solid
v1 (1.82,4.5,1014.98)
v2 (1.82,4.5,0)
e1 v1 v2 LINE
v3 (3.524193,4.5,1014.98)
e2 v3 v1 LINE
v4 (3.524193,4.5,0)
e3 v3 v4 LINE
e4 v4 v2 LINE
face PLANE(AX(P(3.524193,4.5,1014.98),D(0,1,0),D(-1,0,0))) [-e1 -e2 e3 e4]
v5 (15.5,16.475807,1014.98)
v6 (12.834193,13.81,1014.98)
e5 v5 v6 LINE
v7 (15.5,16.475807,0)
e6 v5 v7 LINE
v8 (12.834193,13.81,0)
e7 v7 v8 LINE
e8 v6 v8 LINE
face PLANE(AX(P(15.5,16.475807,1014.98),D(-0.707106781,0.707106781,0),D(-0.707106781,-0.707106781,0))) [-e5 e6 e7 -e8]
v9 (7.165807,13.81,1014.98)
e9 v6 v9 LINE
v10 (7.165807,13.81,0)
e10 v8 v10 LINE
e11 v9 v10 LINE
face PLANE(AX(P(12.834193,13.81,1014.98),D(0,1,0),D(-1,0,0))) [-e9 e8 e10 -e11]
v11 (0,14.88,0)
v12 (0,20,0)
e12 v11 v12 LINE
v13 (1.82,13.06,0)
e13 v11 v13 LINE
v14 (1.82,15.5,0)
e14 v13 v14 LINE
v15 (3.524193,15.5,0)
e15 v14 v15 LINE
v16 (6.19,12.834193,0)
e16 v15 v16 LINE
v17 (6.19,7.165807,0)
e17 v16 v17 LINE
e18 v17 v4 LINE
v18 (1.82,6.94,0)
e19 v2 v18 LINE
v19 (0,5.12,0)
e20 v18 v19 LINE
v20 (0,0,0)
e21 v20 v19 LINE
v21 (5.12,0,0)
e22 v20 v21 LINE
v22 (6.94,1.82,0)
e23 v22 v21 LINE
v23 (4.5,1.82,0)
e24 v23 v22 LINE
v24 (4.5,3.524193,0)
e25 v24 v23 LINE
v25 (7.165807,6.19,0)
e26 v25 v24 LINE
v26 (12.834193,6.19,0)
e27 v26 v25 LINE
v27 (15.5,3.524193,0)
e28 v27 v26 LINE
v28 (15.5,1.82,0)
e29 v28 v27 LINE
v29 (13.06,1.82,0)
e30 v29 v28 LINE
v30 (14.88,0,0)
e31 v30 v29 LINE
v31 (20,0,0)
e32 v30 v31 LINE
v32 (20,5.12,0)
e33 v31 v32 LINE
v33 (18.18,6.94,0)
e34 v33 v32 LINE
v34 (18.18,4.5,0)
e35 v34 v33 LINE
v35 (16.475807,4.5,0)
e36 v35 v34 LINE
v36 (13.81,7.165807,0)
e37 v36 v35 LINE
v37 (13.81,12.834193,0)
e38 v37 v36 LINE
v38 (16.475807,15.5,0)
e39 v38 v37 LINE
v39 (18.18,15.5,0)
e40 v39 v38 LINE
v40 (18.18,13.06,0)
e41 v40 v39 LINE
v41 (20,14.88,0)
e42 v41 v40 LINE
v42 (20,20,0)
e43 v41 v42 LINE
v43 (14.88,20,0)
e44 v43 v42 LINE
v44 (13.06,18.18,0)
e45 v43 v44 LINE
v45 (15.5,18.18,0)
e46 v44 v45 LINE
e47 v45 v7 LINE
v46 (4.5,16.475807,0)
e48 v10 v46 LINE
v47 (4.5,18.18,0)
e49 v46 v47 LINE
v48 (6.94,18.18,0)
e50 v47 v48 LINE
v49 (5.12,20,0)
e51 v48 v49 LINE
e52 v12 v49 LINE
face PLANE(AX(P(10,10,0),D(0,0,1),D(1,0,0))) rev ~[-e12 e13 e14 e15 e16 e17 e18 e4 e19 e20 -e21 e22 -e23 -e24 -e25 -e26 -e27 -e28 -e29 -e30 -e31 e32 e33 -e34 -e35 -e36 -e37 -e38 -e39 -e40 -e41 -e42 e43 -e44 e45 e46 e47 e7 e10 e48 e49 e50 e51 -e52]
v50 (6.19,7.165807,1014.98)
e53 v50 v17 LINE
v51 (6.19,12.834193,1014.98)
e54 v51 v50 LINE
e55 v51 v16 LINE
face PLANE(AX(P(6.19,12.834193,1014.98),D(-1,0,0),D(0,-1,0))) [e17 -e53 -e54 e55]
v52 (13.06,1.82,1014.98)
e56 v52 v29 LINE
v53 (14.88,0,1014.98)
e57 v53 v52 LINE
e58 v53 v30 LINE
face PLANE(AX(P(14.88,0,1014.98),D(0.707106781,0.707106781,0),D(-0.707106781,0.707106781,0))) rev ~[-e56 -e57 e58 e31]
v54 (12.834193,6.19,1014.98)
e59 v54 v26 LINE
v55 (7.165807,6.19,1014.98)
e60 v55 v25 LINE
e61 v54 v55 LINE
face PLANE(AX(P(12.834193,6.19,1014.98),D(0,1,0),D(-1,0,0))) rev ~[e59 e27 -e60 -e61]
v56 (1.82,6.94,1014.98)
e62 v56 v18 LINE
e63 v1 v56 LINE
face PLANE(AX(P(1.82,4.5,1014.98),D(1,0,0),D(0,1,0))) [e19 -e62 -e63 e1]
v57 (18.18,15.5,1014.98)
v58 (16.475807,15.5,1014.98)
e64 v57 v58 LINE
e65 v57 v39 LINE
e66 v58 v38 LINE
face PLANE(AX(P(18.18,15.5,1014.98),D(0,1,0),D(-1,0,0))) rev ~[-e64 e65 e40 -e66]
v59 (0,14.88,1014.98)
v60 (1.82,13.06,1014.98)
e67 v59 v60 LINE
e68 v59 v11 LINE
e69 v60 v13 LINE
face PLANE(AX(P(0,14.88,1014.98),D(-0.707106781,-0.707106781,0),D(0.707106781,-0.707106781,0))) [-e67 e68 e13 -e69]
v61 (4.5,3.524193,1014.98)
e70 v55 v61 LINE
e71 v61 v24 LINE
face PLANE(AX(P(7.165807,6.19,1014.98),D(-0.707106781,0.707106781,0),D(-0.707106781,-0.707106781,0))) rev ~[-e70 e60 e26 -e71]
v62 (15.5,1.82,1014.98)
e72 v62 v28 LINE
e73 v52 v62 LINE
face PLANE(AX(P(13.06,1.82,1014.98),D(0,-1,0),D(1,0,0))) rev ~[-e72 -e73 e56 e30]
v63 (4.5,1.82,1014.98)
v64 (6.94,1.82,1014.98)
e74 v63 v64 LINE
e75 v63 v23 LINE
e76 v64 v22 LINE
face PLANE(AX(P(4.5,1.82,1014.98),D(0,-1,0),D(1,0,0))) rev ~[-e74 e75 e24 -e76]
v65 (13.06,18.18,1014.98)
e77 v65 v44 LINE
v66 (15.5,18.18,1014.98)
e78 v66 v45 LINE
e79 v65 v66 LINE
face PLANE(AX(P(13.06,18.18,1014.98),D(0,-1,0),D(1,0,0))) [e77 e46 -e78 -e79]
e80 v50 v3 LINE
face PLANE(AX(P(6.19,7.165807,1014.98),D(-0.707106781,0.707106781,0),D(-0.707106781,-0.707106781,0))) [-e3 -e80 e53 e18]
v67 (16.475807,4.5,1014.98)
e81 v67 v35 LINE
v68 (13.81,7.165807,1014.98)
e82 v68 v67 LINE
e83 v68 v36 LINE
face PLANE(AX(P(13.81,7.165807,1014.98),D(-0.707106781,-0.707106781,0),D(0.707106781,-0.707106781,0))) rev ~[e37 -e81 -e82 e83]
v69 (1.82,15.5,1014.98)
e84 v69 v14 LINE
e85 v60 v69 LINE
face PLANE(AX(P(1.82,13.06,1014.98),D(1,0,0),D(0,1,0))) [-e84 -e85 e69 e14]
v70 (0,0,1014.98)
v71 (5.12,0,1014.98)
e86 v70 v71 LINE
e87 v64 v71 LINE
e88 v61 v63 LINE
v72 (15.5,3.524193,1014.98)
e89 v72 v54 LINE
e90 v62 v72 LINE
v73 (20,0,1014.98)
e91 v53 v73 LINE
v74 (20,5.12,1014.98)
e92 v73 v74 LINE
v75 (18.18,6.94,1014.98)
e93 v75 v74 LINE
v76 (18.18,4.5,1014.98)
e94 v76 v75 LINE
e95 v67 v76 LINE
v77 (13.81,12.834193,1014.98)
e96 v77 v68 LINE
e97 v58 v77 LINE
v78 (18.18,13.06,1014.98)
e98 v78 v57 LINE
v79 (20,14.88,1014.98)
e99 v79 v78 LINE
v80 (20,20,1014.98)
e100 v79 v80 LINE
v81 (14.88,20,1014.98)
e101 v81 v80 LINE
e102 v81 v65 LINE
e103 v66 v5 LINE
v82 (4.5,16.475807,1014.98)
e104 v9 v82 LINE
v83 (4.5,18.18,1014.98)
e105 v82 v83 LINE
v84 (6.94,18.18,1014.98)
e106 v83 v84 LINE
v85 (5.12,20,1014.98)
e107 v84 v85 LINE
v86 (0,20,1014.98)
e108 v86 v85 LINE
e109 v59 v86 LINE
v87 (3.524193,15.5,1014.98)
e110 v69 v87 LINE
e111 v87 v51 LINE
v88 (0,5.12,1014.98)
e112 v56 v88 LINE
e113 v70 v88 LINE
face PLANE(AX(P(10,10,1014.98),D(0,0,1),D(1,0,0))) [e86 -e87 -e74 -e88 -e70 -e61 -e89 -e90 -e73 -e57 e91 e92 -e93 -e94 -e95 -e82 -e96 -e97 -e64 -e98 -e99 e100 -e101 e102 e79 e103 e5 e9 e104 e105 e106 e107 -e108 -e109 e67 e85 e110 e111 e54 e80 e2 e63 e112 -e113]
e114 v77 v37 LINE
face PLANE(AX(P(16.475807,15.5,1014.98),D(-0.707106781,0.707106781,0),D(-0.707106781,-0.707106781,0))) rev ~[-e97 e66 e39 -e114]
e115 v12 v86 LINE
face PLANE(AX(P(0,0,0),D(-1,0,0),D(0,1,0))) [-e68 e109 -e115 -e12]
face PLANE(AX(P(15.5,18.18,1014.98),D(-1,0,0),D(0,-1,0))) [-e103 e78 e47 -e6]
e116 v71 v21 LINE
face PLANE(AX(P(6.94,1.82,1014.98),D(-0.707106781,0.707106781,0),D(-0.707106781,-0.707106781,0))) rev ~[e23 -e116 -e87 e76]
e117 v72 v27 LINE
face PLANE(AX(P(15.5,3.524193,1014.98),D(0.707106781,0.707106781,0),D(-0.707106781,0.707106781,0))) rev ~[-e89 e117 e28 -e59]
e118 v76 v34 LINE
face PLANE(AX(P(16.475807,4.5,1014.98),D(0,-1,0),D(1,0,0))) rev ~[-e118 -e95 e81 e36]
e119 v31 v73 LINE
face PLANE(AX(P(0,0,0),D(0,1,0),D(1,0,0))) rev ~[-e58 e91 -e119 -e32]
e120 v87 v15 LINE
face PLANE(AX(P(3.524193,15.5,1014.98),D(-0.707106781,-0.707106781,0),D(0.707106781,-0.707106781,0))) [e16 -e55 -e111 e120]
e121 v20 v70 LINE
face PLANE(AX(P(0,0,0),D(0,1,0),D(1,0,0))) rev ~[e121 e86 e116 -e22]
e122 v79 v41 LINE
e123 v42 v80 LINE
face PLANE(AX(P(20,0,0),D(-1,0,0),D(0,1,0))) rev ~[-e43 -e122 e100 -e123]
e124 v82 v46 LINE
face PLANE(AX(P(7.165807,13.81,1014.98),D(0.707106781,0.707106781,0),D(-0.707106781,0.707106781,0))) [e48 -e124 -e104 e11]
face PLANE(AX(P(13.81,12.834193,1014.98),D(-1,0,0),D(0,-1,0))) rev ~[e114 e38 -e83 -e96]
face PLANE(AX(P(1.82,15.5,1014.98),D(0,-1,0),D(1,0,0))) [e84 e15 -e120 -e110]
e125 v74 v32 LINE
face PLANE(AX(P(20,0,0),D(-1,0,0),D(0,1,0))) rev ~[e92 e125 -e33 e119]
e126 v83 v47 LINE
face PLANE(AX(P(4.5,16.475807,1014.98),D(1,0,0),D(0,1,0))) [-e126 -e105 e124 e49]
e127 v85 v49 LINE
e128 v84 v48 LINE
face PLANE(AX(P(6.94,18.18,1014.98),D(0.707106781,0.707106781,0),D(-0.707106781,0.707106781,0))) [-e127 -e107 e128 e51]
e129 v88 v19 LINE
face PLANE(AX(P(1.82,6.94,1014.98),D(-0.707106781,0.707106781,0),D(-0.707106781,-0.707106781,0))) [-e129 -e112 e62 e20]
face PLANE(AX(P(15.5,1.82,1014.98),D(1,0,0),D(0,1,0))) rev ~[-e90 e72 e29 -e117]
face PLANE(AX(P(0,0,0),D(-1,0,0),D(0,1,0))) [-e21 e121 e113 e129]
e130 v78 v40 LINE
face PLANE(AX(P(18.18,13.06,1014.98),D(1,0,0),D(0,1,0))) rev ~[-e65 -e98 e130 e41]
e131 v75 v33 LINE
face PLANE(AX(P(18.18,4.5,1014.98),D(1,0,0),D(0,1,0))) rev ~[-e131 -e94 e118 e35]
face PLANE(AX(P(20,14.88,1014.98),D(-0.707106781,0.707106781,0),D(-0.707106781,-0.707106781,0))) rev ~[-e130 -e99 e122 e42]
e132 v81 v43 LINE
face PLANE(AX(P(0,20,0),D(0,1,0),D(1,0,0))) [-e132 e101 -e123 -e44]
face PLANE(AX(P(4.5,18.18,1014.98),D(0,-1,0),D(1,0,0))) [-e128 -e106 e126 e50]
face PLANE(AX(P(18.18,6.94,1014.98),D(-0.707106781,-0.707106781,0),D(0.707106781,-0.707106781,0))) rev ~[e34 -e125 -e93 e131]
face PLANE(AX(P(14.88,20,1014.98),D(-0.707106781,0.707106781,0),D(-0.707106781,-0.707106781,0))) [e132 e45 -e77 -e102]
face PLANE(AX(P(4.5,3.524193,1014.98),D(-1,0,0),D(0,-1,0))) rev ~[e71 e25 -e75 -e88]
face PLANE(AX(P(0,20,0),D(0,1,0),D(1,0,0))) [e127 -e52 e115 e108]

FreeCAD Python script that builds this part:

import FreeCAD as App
import Part
import Sketcher
Q = App.Units.Quantity

doc = App.newDocument("Part")
body = doc.addObject("PartDesign::Body", "Body")

sketch1 = doc.addObject("Sketcher::SketchObject", "Sketch")
body.addObject(sketch1)
sketch1.AttachmentSupport = (doc.XY_Plane, [""])
sketch1.MapMode = "FlatFace"
sketch1.addGeometry([
    Part.LineSegment(App.Vector(0, 20, 0), App.Vector(0, 0, 0)),
    Part.LineSegment(App.Vector(0, 0, 0), App.Vector(20, 0, 0)),
    Part.LineSegment(App.Vector(20, 0, 0), App.Vector(20, 20, 0)),
    Part.LineSegment(App.Vector(20, 20, 0), App.Vector(0, 20, 0)),
], False)
sketch1.addConstraint([
    Sketcher.Constraint("Coincident", 0, 2, 1, 1),
    Sketcher.Constraint("Coincident", 1, 2, 2, 1),
    Sketcher.Constraint("Coincident", 2, 2, 3, 1),
    Sketcher.Constraint("Coincident", 3, 2, 0, 1),
    Sketcher.Constraint("Vertical", 0),
    Sketcher.Constraint("Horizontal", 1),
    Sketcher.Constraint("Vertical", 2),
    Sketcher.Constraint("Horizontal", 3),
    Sketcher.Constraint("Coincident", 0, 2, -1, 1),
    Sketcher.Constraint("Equal", 3, 0),
    Sketcher.Constraint("DistanceX", 1, 1, 1, 2, Q("20 mm")),
])
pad1 = doc.addObject("PartDesign::Pad", "Pad")
body.addObject(pad1)
pad1.Profile = sketch1
pad1.Length = 1014.98

sketch2 = doc.addObject("Sketcher::SketchObject", "Sketch001")
body.addObject(sketch2)
sketch2.AttachmentSupport = (doc.XY_Plane, [""])
sketch2.MapMode = "FlatFace"
sketch2.AttachmentOffset = App.Placement(App.Vector(0, 0, 1014.98), App.Rotation())
sketch2.addGeometry([
    Part.LineSegment(App.Vector(6.9, 18.2, 0), App.Vector(4.5, 18.2, 0)),
    Part.LineSegment(App.Vector(4.5, 18.2, 0), App.Vector(4.5, 16.5, 0)),
    Part.LineSegment(App.Vector(4.5, 16.5, 0), App.Vector(7.2, 13.8, 0)),
    Part.LineSegment(App.Vector(7.2, 13.8, 0), App.Vector(12.8, 13.8, 0)),
    Part.LineSegment(App.Vector(12.8, 13.8, 0), App.Vector(15.5, 16.5, 0)),
    Part.LineSegment(App.Vector(15.5, 16.5, 0), App.Vector(15.5, 18.2, 0)),
    Part.LineSegment(App.Vector(15.5, 18.2, 0), App.Vector(13.1, 18.2, 0)),
    Part.LineSegment(App.Vector(13.1, 18.2, 0), App.Vector(14.9, 20, 0)),
    Part.LineSegment(App.Vector(14.9, 20, 0), App.Vector(5.1, 20, 0)),
    Part.LineSegment(App.Vector(5.1, 20, 0), App.Vector(6.9, 18.2, 0)),
    Part.LineSegment(App.Vector(14.9, 0, 0), App.Vector(13.1, 1.8, 0)),
    Part.LineSegment(App.Vector(13.1, 1.8, 0), App.Vector(15.5, 1.8, 0)),
    Part.LineSegment(App.Vector(15.5, 1.8, 0), App.Vector(15.5, 3.5, 0)),
    Part.LineSegment(App.Vector(15.5, 3.5, 0), App.Vector(12.8, 6.2, 0)),
    Part.LineSegment(App.Vector(12.8, 6.2, 0), App.Vector(7.2, 6.2, 0)),
    Part.LineSegment(App.Vector(7.2, 6.2, 0), App.Vector(4.5, 3.5, 0)),
    Part.LineSegment(App.Vector(4.5, 3.5, 0), App.Vector(4.5, 1.8, 0)),
    Part.LineSegment(App.Vector(4.5, 1.8, 0), App.Vector(6.9, 1.8, 0)),
    Part.LineSegment(App.Vector(6.9, 1.8, 0), App.Vector(5.1, 0, 0)),
    Part.LineSegment(App.Vector(5.1, 0, 0), App.Vector(14.9, 0, 0)),
    Part.LineSegment(App.Vector(1.8, 6.9, 0), App.Vector(1.8, 4.5, 0)),
    Part.LineSegment(App.Vector(1.8, 4.5, 0), App.Vector(3.5, 4.5, 0)),
    Part.LineSegment(App.Vector(3.5, 4.5, 0), App.Vector(6.2, 7.2, 0)),
    Part.LineSegment(App.Vector(6.2, 7.2, 0), App.Vector(6.2, 12.8, 0)),
    Part.LineSegment(App.Vector(6.2, 12.8, 0), App.Vector(3.5, 15.5, 0)),
    Part.LineSegment(App.Vector(3.5, 15.5, 0), App.Vector(1.8, 15.5, 0)),
    Part.LineSegment(App.Vector(1.8, 15.5, 0), App.Vector(1.8, 13.1, 0)),
    Part.LineSegment(App.Vector(1.8, 13.1, 0), App.Vector(0, 14.9, 0)),
    Part.LineSegment(App.Vector(0, 14.9, 0), App.Vector(0, 5.1, 0)),
    Part.LineSegment(App.Vector(0, 5.1, 0), App.Vector(1.8, 6.9, 0)),
    Part.LineSegment(App.Vector(20, 14.9, 0), App.Vector(18.2, 13.1, 0)),
    Part.LineSegment(App.Vector(18.2, 13.1, 0), App.Vector(18.2, 15.5, 0)),
    Part.LineSegment(App.Vector(18.2, 15.5, 0), App.Vector(16.5, 15.5, 0)),
    Part.LineSegment(App.Vector(16.5, 15.5, 0), App.Vector(13.8, 12.8, 0)),
    Part.LineSegment(App.Vector(13.8, 12.8, 0), App.Vector(13.8, 7.2, 0)),
    Part.LineSegment(App.Vector(13.8, 7.2, 0), App.Vector(16.5, 4.5, 0)),
    Part.LineSegment(App.Vector(16.5, 4.5, 0), App.Vector(18.2, 4.5, 0)),
    Part.LineSegment(App.Vector(18.2, 4.5, 0), App.Vector(18.2, 6.9, 0)),
    Part.LineSegment(App.Vector(18.2, 6.9, 0), App.Vector(20, 5.1, 0)),
    Part.LineSegment(App.Vector(20, 5.1, 0), App.Vector(20, 14.9, 0)),
], False)
sketch2.addConstraint([
    Sketcher.Constraint("Coincident", 0, 2, 1, 1),
    Sketcher.Constraint("Coincident", 1, 2, 2, 1),
    Sketcher.Constraint("Coincident", 2, 2, 3, 1),
    Sketcher.Constraint("Coincident", 3, 2, 4, 1),
    Sketcher.Constraint("Coincident", 4, 2, 5, 1),
    Sketcher.Constraint("Coincident", 5, 2, 6, 1),
    Sketcher.Constraint("Coincident", 6, 2, 7, 1),
    Sketcher.Constraint("Coincident", 7, 2, 8, 1),
    Sketcher.Constraint("Coincident", 8, 2, 9, 1),
    Sketcher.Constraint("Coincident", 9, 2, 0, 1),
    Sketcher.Constraint("Coincident", 10, 2, 11, 1),
    Sketcher.Constraint("Coincident", 11, 2, 12, 1),
    Sketcher.Constraint("Coincident", 12, 2, 13, 1),
    Sketcher.Constraint("Coincident", 13, 2, 14, 1),
    Sketcher.Constraint("Coincident", 14, 2, 15, 1),
    Sketcher.Constraint("Coincident", 15, 2, 16, 1),
    Sketcher.Constraint("Coincident", 16, 2, 17, 1),
    Sketcher.Constraint("Coincident", 17, 2, 18, 1),
    Sketcher.Constraint("Coincident", 18, 2, 19, 1),
    Sketcher.Constraint("Coincident", 19, 2, 10, 1),
    Sketcher.Constraint("Coincident", 20, 2, 21, 1),
    Sketcher.Constraint("Coincident", 21, 2, 22, 1),
    Sketcher.Constraint("Coincident", 22, 2, 23, 1),
    Sketcher.Constraint("Coincident", 23, 2, 24, 1),
    Sketcher.Constraint("Coincident", 24, 2, 25, 1),
    Sketcher.Constraint("Coincident", 25, 2, 26, 1),
    Sketcher.Constraint("Coincident", 26, 2, 27, 1),
    Sketcher.Constraint("Coincident", 27, 2, 28, 1),
    Sketcher.Constraint("Coincident", 28, 2, 29, 1),
    Sketcher.Constraint("Coincident", 29, 2, 20, 1),
    Sketcher.Constraint("Coincident", 30, 2, 31, 1),
    Sketcher.Constraint("Coincident", 31, 2, 32, 1),
    Sketcher.Constraint("Coincident", 32, 2, 33, 1),
    Sketcher.Constraint("Coincident", 33, 2, 34, 1),
    Sketcher.Constraint("Coincident", 34, 2, 35, 1),
    Sketcher.Constraint("Coincident", 35, 2, 36, 1),
    Sketcher.Constraint("Coincident", 36, 2, 37, 1),
    Sketcher.Constraint("Coincident", 37, 2, 38, 1),
    Sketcher.Constraint("Coincident", 38, 2, 39, 1),
    Sketcher.Constraint("Coincident", 39, 2, 30, 1),
    Sketcher.Constraint("Horizontal", 0),
    Sketcher.Constraint("Vertical", 1),
    Sketcher.Constraint("Horizontal", 3),
    Sketcher.Constraint("Vertical", 5),
    Sketcher.Constraint("Horizontal", 6),
    Sketcher.Constraint("Horizontal", 8),
    Sketcher.Constraint("Horizontal", 11),
    Sketcher.Constraint("Vertical", 12),
    Sketcher.Constraint("Horizontal", 14),
    Sketcher.Constraint("Vertical", 16),
    Sketcher.Constraint("Horizontal", 17),
    Sketcher.Constraint("Horizontal", 19),
    Sketcher.Constraint("Vertical", 20),
    Sketcher.Constraint("Horizontal", 21),
    Sketcher.Constraint("Vertical", 23),
    Sketcher.Constraint("Horizontal", 25),
    Sketcher.Constraint("Vertical", 26),
    Sketcher.Constraint("Vertical", 28),
    Sketcher.Constraint("Vertical", 31),
    Sketcher.Constraint("Horizontal", 32),
    Sketcher.Constraint("Vertical", 34),
    Sketcher.Constraint("Horizontal", 36),
    Sketcher.Constraint("Vertical", 37),
    Sketcher.Constraint("Vertical", 39),
    Sketcher.Constraint("PointOnObject", 18, 2, -1),
    Sketcher.Constraint("PointOnObject", 27, 2, -2),
    Sketcher.Constraint("Perpendicular", 2, 4),
    Sketcher.Constraint("Parallel", 4, 7),
    Sketcher.Constraint("Perpendicular", 7, 9),
    Sketcher.Constraint("Parallel", 9, 10),
    Sketcher.Constraint("Parallel", 10, 13),
    Sketcher.Constraint("Perpendicular", 13, 15),
    Sketcher.Constraint("Parallel", 15, 18),
    Sketcher.Constraint("Parallel", 18, 22),
    Sketcher.Constraint("Perpendicular", 22, 24),
    Sketcher.Constraint("Parallel", 24, 27),
    Sketcher.Constraint("Perpendicular", 27, 29),
    Sketcher.Constraint("Parallel", 29, 30),
    Sketcher.Constraint("Parallel", 30, 33),
    Sketcher.Constraint("Perpendicular", 33, 35),
    Sketcher.Constraint("Parallel", 35, 38),
    Sketcher.Constraint("Horizontal", 1, 2, 4, 2),
    Sketcher.Constraint("Horizontal", 0, 2, 5, 2),
    Sketcher.Constraint("Horizontal", 12, 2, 15, 2),
    Sketcher.Constraint("Horizontal", 11, 2, 16, 2),
    Sketcher.Constraint("Horizontal", 26, 2, 30, 2),
    Sketcher.Constraint("Horizontal", 25, 2, 31, 2),
    Sketcher.Constraint("Horizontal", 23, 2, 33, 2),
    Sketcher.Constraint("Horizontal", 22, 2, 34, 2),
    Sketcher.Constraint("Horizontal", 21, 2, 35, 2),
    Sketcher.Constraint("Horizontal", 29, 2, 37, 2),
    Sketcher.Constraint("Horizontal", 28, 2, 38, 2),
    Sketcher.Constraint("Horizontal", 27, 2, 39, 2),
    Sketcher.Constraint("Vertical", 6, 2, 10, 2),
    Sketcher.Constraint("Vertical", 5, 2, 11, 2),
    Sketcher.Constraint("Vertical", 3, 2, 13, 2),
    Sketcher.Constraint("Vertical", 2, 2, 14, 2),
    Sketcher.Constraint("Vertical", 1, 2, 15, 2),
    Sketcher.Constraint("Vertical", 9, 2, 17, 2),
    Sketcher.Constraint("Vertical", 8, 2, 18, 2),
    Sketcher.Constraint("Vertical", 21, 2, 24, 2),
    Sketcher.Constraint("Vertical", 20, 2, 25, 2),
    Sketcher.Constraint("Equal", 0, 6),
    Sketcher.Constraint("Equal", 25, 32),
    Sketcher.Constraint("Equal", 36, 1),
    Sketcher.Constraint("Equal", 5, 12),
    Sketcher.Constraint("Equal", 17, 20),
    Sketcher.Constraint("Equal", 14, 23),
    Sketcher.Constraint("Equal", 20, 26),
    Sketcher.Constraint("Equal", 19, 28),
    Sketcher.Constraint("Equal", 15, 22),
    Sketcher.Constraint("DistanceY", -1, 1, 7, 2, Q("20 mm")),
    Sketcher.Constraint("DistanceX", -1, 1, 38, 2, Q("20 mm")),
    Sketcher.Constraint("DistanceX", 1, 2, 4, 2, Q("11 mm")),
    Sketcher.Constraint("DistanceX", 0, 2, 0, 1, Q("2.44 mm")),
    Sketcher.Constraint("DistanceX", 8, 2, 8, 1, Q("9.76 mm")),
    Sketcher.Constraint("DistanceX", -1, 1, 0, 2, Q("4.5 mm")),
    Sketcher.Constraint("DistanceY", -1, 1, 20, 2, Q("4.5 mm")),
    Sketcher.Constraint("DistanceY", -1, 1, 2, 2, Q("13.81 mm")),
    Sketcher.Constraint("Distance", 2, Q("3.770021 mm")),
])
pocket1 = doc.addObject("PartDesign::Pocket", "Pocket")
body.addObject(pocket1)
pocket1.Profile = sketch2
pocket1.Type = "ThroughAll"

doc.recompute()
